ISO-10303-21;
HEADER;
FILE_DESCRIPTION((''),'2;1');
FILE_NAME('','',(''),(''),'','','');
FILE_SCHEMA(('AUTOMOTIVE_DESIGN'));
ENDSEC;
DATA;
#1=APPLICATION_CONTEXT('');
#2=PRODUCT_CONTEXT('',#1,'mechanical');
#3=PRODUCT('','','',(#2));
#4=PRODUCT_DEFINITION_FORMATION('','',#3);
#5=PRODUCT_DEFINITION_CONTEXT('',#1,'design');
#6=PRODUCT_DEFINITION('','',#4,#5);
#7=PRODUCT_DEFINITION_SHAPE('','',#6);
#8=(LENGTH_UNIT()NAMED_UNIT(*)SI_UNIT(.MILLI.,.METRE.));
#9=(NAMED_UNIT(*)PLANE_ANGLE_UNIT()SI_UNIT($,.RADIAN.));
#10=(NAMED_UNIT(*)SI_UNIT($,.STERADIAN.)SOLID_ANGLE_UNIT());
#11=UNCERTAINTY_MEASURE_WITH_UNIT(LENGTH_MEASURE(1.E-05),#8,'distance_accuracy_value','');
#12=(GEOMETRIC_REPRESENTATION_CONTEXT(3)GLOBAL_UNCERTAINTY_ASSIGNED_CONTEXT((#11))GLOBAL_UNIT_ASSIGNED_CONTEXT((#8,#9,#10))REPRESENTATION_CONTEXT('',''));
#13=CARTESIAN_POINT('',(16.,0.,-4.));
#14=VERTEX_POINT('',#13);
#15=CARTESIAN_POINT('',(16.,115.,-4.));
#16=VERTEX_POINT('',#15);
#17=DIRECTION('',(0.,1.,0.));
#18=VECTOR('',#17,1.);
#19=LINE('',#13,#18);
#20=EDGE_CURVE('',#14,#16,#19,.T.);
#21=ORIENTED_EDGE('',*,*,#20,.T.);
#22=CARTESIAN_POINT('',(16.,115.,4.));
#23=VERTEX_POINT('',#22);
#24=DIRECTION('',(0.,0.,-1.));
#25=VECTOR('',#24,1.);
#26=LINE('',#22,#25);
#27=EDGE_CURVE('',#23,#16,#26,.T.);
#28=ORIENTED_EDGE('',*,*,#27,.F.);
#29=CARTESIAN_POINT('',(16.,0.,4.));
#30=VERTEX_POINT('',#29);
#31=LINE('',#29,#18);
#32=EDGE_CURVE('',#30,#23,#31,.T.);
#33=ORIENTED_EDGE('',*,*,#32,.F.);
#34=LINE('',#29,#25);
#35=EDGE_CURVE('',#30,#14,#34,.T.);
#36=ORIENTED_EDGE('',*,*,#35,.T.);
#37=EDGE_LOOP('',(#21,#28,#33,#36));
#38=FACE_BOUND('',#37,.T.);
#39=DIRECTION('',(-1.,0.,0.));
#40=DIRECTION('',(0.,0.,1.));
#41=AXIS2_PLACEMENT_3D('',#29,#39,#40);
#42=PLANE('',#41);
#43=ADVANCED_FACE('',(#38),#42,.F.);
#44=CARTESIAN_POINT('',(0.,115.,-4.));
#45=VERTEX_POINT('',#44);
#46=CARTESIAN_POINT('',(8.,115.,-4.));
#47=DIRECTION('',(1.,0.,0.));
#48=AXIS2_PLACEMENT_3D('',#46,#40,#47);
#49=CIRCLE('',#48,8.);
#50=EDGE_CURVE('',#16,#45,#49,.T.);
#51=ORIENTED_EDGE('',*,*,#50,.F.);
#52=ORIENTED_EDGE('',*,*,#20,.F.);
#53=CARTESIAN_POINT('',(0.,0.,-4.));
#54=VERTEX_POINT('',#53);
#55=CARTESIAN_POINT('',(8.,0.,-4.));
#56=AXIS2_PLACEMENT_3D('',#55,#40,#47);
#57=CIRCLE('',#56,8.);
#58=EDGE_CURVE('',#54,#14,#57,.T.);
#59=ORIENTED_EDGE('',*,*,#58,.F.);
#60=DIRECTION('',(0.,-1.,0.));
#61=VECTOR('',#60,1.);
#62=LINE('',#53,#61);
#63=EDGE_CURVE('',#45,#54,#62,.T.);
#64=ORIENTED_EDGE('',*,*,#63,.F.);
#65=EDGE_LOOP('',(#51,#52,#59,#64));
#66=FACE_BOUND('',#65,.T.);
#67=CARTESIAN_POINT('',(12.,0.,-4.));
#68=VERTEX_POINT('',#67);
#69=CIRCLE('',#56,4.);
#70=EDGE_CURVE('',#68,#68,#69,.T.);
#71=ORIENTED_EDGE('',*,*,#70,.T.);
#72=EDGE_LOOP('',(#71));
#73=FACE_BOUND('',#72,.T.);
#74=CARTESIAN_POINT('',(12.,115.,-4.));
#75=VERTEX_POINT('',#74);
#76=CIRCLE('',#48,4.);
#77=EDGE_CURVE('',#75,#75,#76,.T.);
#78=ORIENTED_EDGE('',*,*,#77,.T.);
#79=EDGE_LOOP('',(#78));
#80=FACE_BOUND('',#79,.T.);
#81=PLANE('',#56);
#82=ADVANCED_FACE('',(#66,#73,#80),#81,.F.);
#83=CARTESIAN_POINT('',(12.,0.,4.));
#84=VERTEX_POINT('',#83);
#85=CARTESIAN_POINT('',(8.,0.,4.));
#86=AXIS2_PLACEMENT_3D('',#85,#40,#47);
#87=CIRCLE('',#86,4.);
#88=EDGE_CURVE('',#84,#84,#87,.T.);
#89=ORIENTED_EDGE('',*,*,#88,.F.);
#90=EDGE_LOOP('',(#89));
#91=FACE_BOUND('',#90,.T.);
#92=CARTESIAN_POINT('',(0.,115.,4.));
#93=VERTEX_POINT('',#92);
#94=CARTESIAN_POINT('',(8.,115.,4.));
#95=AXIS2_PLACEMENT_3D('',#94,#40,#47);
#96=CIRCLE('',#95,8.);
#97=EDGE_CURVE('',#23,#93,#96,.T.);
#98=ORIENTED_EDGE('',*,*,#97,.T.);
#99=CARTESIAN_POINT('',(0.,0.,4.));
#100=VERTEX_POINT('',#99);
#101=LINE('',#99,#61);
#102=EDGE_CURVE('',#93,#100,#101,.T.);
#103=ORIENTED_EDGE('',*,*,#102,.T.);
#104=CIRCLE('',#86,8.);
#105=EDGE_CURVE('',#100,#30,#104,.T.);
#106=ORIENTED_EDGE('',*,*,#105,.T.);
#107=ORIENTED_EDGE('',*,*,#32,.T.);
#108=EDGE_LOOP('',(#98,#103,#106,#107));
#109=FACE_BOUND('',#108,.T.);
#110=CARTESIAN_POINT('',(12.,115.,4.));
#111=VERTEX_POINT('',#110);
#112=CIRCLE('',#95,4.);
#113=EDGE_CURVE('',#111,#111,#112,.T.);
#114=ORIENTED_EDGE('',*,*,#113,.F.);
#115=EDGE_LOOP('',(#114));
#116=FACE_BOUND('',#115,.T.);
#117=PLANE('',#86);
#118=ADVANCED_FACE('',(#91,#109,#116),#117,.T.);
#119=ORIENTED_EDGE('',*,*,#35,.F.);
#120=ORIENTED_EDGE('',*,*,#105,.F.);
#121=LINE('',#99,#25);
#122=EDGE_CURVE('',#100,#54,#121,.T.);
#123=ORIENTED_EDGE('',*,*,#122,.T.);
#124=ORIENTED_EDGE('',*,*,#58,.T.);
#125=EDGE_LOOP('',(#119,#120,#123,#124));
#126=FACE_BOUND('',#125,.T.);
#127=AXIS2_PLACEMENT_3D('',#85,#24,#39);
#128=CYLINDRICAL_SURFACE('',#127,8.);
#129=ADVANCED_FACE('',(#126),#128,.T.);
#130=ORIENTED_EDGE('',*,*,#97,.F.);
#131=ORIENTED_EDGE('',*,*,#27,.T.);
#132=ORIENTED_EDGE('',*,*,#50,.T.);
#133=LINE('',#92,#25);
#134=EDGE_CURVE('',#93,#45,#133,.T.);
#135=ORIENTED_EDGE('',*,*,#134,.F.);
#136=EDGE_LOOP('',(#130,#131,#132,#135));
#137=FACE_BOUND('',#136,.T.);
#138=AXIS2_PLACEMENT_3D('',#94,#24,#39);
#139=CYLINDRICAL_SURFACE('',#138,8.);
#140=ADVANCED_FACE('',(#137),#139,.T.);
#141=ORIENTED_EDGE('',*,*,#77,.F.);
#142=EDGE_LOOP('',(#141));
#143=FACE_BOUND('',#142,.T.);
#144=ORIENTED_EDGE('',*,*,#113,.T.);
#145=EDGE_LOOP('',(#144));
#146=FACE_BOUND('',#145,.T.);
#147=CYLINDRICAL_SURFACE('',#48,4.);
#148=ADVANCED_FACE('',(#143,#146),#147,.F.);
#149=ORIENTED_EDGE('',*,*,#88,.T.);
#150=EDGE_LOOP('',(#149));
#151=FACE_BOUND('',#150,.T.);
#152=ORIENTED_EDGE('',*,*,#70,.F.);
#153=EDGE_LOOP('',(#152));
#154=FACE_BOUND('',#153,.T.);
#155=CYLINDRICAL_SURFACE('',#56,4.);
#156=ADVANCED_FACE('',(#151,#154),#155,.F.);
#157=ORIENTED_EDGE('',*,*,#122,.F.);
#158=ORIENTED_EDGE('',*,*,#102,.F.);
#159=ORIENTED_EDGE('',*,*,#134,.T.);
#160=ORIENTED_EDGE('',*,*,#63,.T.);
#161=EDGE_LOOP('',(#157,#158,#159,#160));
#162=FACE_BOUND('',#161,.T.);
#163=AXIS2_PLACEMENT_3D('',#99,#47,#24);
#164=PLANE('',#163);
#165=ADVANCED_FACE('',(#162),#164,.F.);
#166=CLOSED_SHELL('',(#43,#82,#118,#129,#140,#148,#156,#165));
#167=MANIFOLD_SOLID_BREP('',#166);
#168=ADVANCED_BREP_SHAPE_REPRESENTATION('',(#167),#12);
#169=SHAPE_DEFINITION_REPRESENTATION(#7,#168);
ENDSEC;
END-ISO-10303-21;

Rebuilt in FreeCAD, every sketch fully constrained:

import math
import FreeCAD as App
import Part
import Sketcher
Q = App.Units.Quantity

doc = App.newDocument("Part")
body = doc.addObject("PartDesign::Body", "Body")

# Sketch on XY plane
sketch1 = doc.addObject("Sketcher::SketchObject", "Sketch")
body.addObject(sketch1)
sketch1.AttachmentSupport = (doc.XY_Plane, [""])
sketch1.MapMode = "FlatFace"
sketch1.addGeometry([
    Part.LineSegment(App.Vector(0, 115, 0), App.Vector(0, 0, 0)),
    Part.ArcOfCircle(Part.Circle(App.Vector(8, 0, 0), App.Vector(0, 0, 1), 8), math.radians(180), math.radians(360)),
    Part.LineSegment(App.Vector(16, 0, 0), App.Vector(16, 115, 0)),
    Part.ArcOfCircle(Part.Circle(App.Vector(8, 115, 0), App.Vector(0, 0, 1), 8), math.radians(0), math.radians(180)),
], False)
sketch1.addConstraint([
    Sketcher.Constraint("Tangent", 0, 2, 1, 1),
    Sketcher.Constraint("Tangent", 1, 2, 2, 1),
    Sketcher.Constraint("Tangent", 2, 2, 3, 1),
    Sketcher.Constraint("Tangent", 3, 2, 0, 1),
    Sketcher.Constraint("Vertical", 0),
    Sketcher.Constraint("Vertical", 2),
    Sketcher.Constraint("Coincident", 0, 2, -1, 1),
    Sketcher.Constraint("Radius", 1, Q("8 mm")),
    Sketcher.Constraint("DistanceY", 0, 2, 0, 1, Q("115 mm")),
])
pad1 = doc.addObject("PartDesign::Pad", "Pad")
body.addObject(pad1)
pad1.Profile = sketch1
pad1.Length = 8
pad1.Midplane = True

# Sketch on XY plane
sketch2 = doc.addObject("Sketcher::SketchObject", "Sketch001")
body.addObject(sketch2)
sketch2.AttachmentSupport = (doc.XY_Plane, [""])
sketch2.MapMode = "FlatFace"
sketch2.AttachmentOffset = App.Placement(App.Vector(0, 0, 4), App.Rotation())
sketch2.addGeometry([
    Part.Circle(App.Vector(8, 115, 0), App.Vector(0, 0, 1), 4),
    Part.Circle(App.Vector(8, 0, 0), App.Vector(0, 0, 1), 4),
], False)
sketch2.addConstraint([
    Sketcher.Constraint("Equal", 0, 1),
    Sketcher.Constraint("PointOnObject", 1, 3, -1),
    Sketcher.Constraint("Vertical", 0, 3, 1, 3),
    Sketcher.Constraint("Diameter", 0, Q("8 mm")),
    Sketcher.Constraint("DistanceX", -1, 1, 0, 3, Q("8 mm")),
    Sketcher.Constraint("DistanceY", -1, 1, 0, 3, Q("115 mm")),
])
pocket1 = doc.addObject("PartDesign::Pocket", "Pocket")
body.addObject(pocket1)
pocket1.Profile = sketch2
pocket1.Type = "ThroughAll"

doc.recompute()
